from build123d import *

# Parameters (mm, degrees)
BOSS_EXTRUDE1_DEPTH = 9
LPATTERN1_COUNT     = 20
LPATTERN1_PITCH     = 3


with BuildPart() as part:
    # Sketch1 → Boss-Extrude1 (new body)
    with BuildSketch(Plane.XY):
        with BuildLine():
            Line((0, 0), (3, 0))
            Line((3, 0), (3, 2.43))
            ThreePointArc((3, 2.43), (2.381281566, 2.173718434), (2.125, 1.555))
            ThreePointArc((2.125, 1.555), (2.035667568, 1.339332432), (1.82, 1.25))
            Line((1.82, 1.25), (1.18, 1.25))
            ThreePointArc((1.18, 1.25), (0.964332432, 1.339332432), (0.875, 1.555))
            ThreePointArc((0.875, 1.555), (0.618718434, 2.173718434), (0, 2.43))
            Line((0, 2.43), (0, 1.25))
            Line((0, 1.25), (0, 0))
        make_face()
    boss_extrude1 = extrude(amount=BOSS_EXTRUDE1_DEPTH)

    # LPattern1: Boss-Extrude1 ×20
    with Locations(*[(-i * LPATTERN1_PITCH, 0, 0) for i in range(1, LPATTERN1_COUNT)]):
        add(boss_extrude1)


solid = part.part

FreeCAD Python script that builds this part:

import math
import FreeCAD as App
import Part
import Sketcher
Q = App.Units.Quantity

doc = App.newDocument("Part")
body = doc.addObject("PartDesign::Body", "Body")

# Sketch on XY plane
sketch1 = body.newObject("Sketcher::SketchObject", "Sketch")
sketch1.AttachmentSupport = (doc.getObject("XY_Plane"), [""])
sketch1.MapMode = "FlatFace"
sketch1.addGeometry([
    Part.LineSegment(App.Vector(0, 0, 0), App.Vector(3, 0, 0)),  # 0
    Part.LineSegment(App.Vector(3, 0, 0), App.Vector(3, 2.43, 0)),  # 1
    Part.ArcOfCircle(Part.Circle(App.Vector(3, 1.555, 0), App.Vector(0, 0, 1), 0.875), math.radians(90), math.radians(180)),  # 2
    Part.ArcOfCircle(Part.Circle(App.Vector(1.82, 1.555, 0), App.Vector(0, 0, 1), 0.305), math.radians(-90), math.radians(0)),  # 3
    Part.LineSegment(App.Vector(1.82, 1.25, 0), App.Vector(1.18, 1.25, 0)),  # 4
    Part.ArcOfCircle(Part.Circle(App.Vector(1.18, 1.555, 0), App.Vector(0, 0, 1), 0.305), math.radians(-180), math.radians(-90)),  # 5
    Part.ArcOfCircle(Part.Circle(App.Vector(0, 1.555, 0), App.Vector(0, 0, 1), 0.875), math.radians(0), math.radians(90)),  # 6
    Part.LineSegment(App.Vector(0, 2.43, 0), App.Vector(0, 0, 0)),  # 7
], False)
sketch1.addConstraint([
    Sketcher.Constraint("Coincident", 0, 2, 1, 1),
    Sketcher.Constraint("Coincident", 1, 2, 2, 1),
    Sketcher.Constraint("Tangent", 2, 2, 3, 2),
    Sketcher.Constraint("Tangent", 3, 1, 4, 1),
    Sketcher.Constraint("Tangent", 4, 2, 5, 2),
    Sketcher.Constraint("Tangent", 5, 1, 6, 1),
    Sketcher.Constraint("Coincident", 6, 2, 7, 1),
    Sketcher.Constraint("Coincident", 7, 2, 0, 1),
    Sketcher.Constraint("Horizontal", 0),
    Sketcher.Constraint("Vertical", 1),
    Sketcher.Constraint("Horizontal", 4),
    Sketcher.Constraint("Vertical", 7),
    Sketcher.Constraint("Coincident", 7, 2, -1, 1),
    Sketcher.Constraint("Equal", 3, 5),
    Sketcher.Constraint("Equal", 2, 6),
    Sketcher.Constraint("PointOnObject", 6, 3, -2),
    Sketcher.Constraint("Horizontal", 2, 3, 3, 3),
    Sketcher.Constraint("Horizontal", 5, 3, 6, 3),
    Sketcher.Constraint("Vertical", 2, 3, 0, 2),
    Sketcher.Constraint("DistanceX", 0, 1, 0, 2, Q("3 mm")),
    Sketcher.Constraint("Radius", 2, Q("0.875 mm")),
    Sketcher.Constraint("Radius", 3, Q("0.305 mm")),
    Sketcher.Constraint("DistanceY", 1, 1, 1, 2, Q("2.43 mm")),
])
pad1 = body.newObject("PartDesign::Pad", "Pad")
pad1.Profile = sketch1
pad1.Length = 9
doc.recompute()

linearpattern = body.newObject("PartDesign::LinearPattern", "LinearPattern")
linearpattern.Originals = [pad1]
linearpattern.Direction = (doc.getObject("X_Axis"), [""])
linearpattern.Mode = "offset"
linearpattern.Offset = 3
linearpattern.Occurrences = 20
linearpattern.Reversed = True
body.Tip = linearpattern

doc.recompute()
